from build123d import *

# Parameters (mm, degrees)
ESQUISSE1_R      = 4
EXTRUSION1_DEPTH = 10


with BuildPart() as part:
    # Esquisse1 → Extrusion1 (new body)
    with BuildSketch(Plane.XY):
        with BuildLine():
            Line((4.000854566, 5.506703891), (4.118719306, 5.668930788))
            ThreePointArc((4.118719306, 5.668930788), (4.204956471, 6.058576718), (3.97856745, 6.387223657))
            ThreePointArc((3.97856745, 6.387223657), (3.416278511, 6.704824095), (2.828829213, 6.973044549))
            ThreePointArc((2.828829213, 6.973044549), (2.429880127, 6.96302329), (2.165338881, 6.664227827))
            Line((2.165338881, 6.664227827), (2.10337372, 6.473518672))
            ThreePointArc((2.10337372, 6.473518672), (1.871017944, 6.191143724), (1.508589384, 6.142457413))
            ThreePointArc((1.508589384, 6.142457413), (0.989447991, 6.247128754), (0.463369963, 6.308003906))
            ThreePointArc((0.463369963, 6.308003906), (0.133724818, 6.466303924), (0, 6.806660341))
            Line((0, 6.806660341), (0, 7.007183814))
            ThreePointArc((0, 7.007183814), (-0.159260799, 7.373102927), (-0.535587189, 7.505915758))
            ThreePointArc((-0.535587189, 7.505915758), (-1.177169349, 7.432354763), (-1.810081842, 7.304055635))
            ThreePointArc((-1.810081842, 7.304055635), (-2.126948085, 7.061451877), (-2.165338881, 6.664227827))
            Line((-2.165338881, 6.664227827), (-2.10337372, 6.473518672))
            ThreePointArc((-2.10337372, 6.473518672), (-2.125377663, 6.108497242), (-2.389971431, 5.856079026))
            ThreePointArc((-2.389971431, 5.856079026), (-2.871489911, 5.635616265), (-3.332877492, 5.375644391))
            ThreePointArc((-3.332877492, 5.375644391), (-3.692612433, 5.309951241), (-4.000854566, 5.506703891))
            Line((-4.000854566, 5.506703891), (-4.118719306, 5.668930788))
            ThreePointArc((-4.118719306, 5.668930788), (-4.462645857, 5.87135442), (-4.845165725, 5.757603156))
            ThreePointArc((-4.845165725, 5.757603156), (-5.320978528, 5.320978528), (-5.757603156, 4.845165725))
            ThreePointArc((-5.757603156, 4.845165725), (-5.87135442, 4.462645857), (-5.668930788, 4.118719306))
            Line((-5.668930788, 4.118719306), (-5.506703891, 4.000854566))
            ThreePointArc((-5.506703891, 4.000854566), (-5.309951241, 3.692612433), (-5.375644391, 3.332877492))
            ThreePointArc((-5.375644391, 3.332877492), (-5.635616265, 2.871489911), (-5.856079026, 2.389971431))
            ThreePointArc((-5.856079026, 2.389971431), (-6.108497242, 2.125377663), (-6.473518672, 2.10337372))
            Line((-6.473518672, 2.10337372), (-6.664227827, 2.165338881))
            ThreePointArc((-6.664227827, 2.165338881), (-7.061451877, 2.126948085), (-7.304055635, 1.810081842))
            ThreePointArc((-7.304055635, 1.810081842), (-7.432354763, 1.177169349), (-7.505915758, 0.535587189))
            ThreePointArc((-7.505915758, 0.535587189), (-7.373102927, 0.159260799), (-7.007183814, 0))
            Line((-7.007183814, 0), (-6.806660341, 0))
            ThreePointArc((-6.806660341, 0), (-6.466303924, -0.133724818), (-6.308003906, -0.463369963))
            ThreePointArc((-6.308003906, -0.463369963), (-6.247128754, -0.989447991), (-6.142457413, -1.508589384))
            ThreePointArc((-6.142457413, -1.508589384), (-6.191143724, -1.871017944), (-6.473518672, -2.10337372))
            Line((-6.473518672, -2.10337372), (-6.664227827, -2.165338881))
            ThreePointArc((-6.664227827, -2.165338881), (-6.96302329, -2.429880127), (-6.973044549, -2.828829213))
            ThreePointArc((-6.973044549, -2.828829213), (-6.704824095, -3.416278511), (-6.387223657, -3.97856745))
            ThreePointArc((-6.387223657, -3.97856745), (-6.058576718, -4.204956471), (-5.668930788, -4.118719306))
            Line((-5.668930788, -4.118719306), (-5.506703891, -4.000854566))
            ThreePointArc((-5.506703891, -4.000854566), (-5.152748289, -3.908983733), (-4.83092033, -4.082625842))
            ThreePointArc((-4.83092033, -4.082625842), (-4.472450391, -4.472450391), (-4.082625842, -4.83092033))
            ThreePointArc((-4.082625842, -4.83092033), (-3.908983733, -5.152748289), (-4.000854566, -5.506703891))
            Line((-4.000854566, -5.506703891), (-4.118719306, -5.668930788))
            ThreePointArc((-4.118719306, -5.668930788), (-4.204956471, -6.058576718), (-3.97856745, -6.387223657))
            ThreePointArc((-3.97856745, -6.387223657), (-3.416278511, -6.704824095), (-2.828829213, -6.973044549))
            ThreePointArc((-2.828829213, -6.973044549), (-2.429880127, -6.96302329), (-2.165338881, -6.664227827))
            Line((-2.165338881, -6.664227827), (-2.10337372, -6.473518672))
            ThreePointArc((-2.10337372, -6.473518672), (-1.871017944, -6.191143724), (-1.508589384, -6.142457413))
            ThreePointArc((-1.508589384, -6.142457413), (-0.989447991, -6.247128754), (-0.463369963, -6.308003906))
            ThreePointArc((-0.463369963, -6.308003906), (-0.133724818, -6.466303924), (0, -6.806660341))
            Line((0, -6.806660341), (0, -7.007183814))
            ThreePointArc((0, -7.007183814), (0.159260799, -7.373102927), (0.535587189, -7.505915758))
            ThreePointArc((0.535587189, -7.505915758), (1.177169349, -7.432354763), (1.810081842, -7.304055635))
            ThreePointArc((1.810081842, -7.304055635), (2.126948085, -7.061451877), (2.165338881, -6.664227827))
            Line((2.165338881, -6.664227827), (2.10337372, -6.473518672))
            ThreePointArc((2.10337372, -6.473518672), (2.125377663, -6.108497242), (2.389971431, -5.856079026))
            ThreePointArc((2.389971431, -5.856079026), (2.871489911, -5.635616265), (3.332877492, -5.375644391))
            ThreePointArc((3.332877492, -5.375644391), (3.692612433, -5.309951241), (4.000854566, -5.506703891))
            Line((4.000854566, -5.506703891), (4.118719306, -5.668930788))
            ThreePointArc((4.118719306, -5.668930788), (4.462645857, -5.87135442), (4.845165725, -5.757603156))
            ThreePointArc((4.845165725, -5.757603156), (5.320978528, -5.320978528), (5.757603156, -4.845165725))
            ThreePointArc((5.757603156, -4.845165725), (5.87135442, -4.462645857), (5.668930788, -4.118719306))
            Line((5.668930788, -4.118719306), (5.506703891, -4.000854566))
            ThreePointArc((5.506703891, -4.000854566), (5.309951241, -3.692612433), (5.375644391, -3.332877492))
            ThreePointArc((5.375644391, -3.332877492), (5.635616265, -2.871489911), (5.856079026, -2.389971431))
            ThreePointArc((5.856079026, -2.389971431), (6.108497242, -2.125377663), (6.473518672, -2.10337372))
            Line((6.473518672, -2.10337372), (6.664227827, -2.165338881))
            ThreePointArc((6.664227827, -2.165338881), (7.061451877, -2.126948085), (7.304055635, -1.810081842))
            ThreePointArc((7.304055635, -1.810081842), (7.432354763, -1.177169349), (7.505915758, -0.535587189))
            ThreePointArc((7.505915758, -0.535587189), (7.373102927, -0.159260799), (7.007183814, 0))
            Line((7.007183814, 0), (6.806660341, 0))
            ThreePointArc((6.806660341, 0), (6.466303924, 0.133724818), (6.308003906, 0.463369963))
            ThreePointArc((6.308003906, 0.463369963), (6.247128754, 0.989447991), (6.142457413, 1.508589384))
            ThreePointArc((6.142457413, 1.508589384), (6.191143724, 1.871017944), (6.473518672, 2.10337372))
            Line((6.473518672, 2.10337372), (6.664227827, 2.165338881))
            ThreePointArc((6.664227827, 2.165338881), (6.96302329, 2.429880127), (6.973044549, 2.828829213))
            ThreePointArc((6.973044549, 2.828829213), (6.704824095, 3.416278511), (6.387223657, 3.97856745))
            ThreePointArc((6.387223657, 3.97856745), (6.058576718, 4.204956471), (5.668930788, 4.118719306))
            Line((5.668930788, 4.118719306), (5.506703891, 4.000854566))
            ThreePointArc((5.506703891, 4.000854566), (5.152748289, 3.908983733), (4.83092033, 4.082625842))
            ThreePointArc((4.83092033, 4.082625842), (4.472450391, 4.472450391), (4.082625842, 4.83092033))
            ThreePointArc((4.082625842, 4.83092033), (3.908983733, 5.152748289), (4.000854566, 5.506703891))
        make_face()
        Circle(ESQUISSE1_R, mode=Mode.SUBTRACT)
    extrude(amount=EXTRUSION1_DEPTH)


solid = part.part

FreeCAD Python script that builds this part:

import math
import FreeCAD as App
import Part
import Sketcher
from FreeCAD import Vector
Q = App.Units.Quantity

doc = App.newDocument("Part")
body = doc.addObject("PartDesign::Body", "Body")

# Sketch on XY plane
sketch1 = body.newObject("Sketcher::SketchObject", "Sketch")
sketch1.AttachmentSupport = (doc.getObject("XY_Plane"), [""])
sketch1.MapMode = "FlatFace"
sketch1.addGeometry([
    Part.LineSegment(Vector(4, 5.51, 0), Vector(4.12, 5.67, 0)),  # 0
    Part.ArcOfCircle(Part.Circle(Vector(3.71, 5.96, 0), Vector(0, 0, 1), 0.5), math.radians(-36), math.radians(58)),  # 1
    Part.ArcOfCircle(Part.Circle(Vector(0, 0, 0), Vector(0, 0, 1), 7.52), math.radians(58.08), math.radians(67.92)),  # 2
    Part.ArcOfCircle(Part.Circle(Vector(2.64, 6.51, 0), Vector(0, 0, 1), 0.5), math.radians(68), math.radians(162)),  # 3
    Part.LineSegment(Vector(2.17, 6.66, 0), Vector(2.1, 6.47, 0)),  # 4
    Part.ArcOfCircle(Part.Circle(Vector(1.63, 6.63, 0), Vector(0, 0, 1), 0.5), math.radians(-104), math.radians(-18)),  # 5
    Part.ArcOfCircle(Part.Circle(Vector(0, 0, 0), Vector(0, 0, 1), 6.33), math.radians(76.2), math.radians(85.8)),  # 6
    Part.ArcOfCircle(Part.Circle(Vector(0.5, 6.81, 0), Vector(0, 0, 1), 0.5), math.radians(-180), math.radians(-94)),  # 7
    Part.LineSegment(Vector(0, 6.81, 0), Vector(0, 7.01, 0)),  # 8
    Part.ArcOfCircle(Part.Circle(Vector(-0.5, 7.01, 0), Vector(0, 0, 1), 0.5), math.radians(0), math.radians(94)),  # 9
    Part.ArcOfCircle(Part.Circle(Vector(0, 0, 0), Vector(0, 0, 1), 7.52), math.radians(94.08), math.radians(103.92)),  # 10
    Part.ArcOfCircle(Part.Circle(Vector(-1.69, 6.82, 0), Vector(0, 0, 1), 0.5), math.radians(104), math.radians(198)),  # 11
    Part.LineSegment(Vector(-2.17, 6.66, 0), Vector(-2.1, 6.47, 0)),  # 12
    Part.ArcOfCircle(Part.Circle(Vector(-2.58, 6.32, 0), Vector(0, 0, 1), 0.5), math.radians(-68), math.radians(18)),  # 13
    Part.ArcOfCircle(Part.Circle(Vector(0, 0, 0), Vector(0, 0, 1), 6.33), math.radians(112.2), math.radians(121.8)),  # 14
    Part.ArcOfCircle(Part.Circle(Vector(-3.6, 5.8, 0), Vector(0, 0, 1), 0.5), math.radians(-144), math.radians(-58)),  # 15
    Part.LineSegment(Vector(-4, 5.51, 0), Vector(-4.12, 5.67, 0)),  # 16
    Part.ArcOfCircle(Part.Circle(Vector(-4.52, 5.38, 0), Vector(0, 0, 1), 0.5), math.radians(36), math.radians(130)),  # 17
    Part.ArcOfCircle(Part.Circle(Vector(0, 0, 0), Vector(0, 0, 1), 7.53), math.radians(130.08), math.radians(139.92)),  # 18
    Part.ArcOfCircle(Part.Circle(Vector(-5.38, 4.52, 0), Vector(0, 0, 1), 0.5), math.radians(140), math.radians(234)),  # 19
    Part.LineSegment(Vector(-5.67, 4.12, 0), Vector(-5.51, 4, 0)),  # 20
    Part.ArcOfCircle(Part.Circle(Vector(-5.8, 3.6, 0), Vector(0, 0, 1), 0.5), math.radians(-32), math.radians(54)),  # 21
    Part.ArcOfCircle(Part.Circle(Vector(0, 0, 0), Vector(0, 0, 1), 6.33), math.radians(148.2), math.radians(157.8)),  # 22
    Part.ArcOfCircle(Part.Circle(Vector(-6.32, 2.58, 0), Vector(0, 0, 1), 0.5), math.radians(-108), math.radians(-22)),  # 23
    Part.LineSegment(Vector(-6.47, 2.1, 0), Vector(-6.66, 2.17, 0)),  # 24
    Part.ArcOfCircle(Part.Circle(Vector(-6.82, 1.69, 0), Vector(0, 0, 1), 0.5), math.radians(72), math.radians(166)),  # 25
    Part.ArcOfCircle(Part.Circle(Vector(0, 0, 0), Vector(0, 0, 1), 7.52), math.radians(166.08), math.radians(175.92)),  # 26
    Part.ArcOfCircle(Part.Circle(Vector(-7.01, 0.5, 0), Vector(0, 0, 1), 0.5), math.radians(176), math.radians(270)),  # 27
    Part.LineSegment(Vector(-7.01, 0, 0), Vector(-6.81, 0, 0)),  # 28
    Part.ArcOfCircle(Part.Circle(Vector(-6.81, -0.5, 0), Vector(0, 0, 1), 0.5), math.radians(4), math.radians(90)),  # 29
    Part.ArcOfCircle(Part.Circle(Vector(0, 0, 0), Vector(0, 0, 1), 6.33), math.radians(-175.8), math.radians(-166.2)),  # 30
    Part.ArcOfCircle(Part.Circle(Vector(-6.63, -1.63, 0), Vector(0, 0, 1), 0.5), math.radians(-72), math.radians(14)),  # 31
    Part.LineSegment(Vector(-6.47, -2.1, 0), Vector(-6.66, -2.17, 0)),  # 32
    Part.ArcOfCircle(Part.Circle(Vector(-6.51, -2.64, 0), Vector(0, 0, 1), 0.5), math.radians(108), math.radians(202)),  # 33
    Part.ArcOfCircle(Part.Circle(Vector(0, 0, 0), Vector(0, 0, 1), 7.52), math.radians(-157.92), math.radians(-148.08)),  # 34
    Part.ArcOfCircle(Part.Circle(Vector(-5.96, -3.71, 0), Vector(0, 0, 1), 0.5), math.radians(-148), math.radians(-54)),  # 35
    Part.LineSegment(Vector(-5.67, -4.12, 0), Vector(-5.51, -4, 0)),  # 36
    Part.ArcOfCircle(Part.Circle(Vector(-5.21, -4.41, 0), Vector(0, 0, 1), 0.5), math.radians(40), math.radians(126)),  # 37
    Part.ArcOfCircle(Part.Circle(Vector(0, 0, 0), Vector(0, 0, 1), 6.33), math.radians(-139.8), math.radians(-130.2)),  # 38
    Part.ArcOfCircle(Part.Circle(Vector(-4.41, -5.21, 0), Vector(0, 0, 1), 0.5), math.radians(-36), math.radians(50)),  # 39
    Part.LineSegment(Vector(-4, -5.51, 0), Vector(-4.12, -5.67, 0)),  # 40
    Part.ArcOfCircle(Part.Circle(Vector(-3.71, -5.96, 0), Vector(0, 0, 1), 0.5), math.radians(144), math.radians(238)),  # 41
    Part.ArcOfCircle(Part.Circle(Vector(0, 0, 0), Vector(0, 0, 1), 7.52), math.radians(-121.92), math.radians(-112.08)),  # 42
    Part.ArcOfCircle(Part.Circle(Vector(-2.64, -6.51, 0), Vector(0, 0, 1), 0.5), math.radians(-112), math.radians(-18)),  # 43
    Part.LineSegment(Vector(-2.17, -6.66, 0), Vector(-2.1, -6.47, 0)),  # 44
    Part.ArcOfCircle(Part.Circle(Vector(-1.63, -6.63, 0), Vector(0, 0, 1), 0.5), math.radians(76), math.radians(162)),  # 45
    Part.ArcOfCircle(Part.Circle(Vector(0, 0, 0), Vector(0, 0, 1), 6.33), math.radians(-103.8), math.radians(-94.2)),  # 46
    Part.ArcOfCircle(Part.Circle(Vector(-0.5, -6.81, 0), Vector(0, 0, 1), 0.5), math.radians(0), math.radians(86)),  # 47
    Part.LineSegment(Vector(0, -6.81, 0), Vector(0, -7.01, 0)),  # 48
    Part.ArcOfCircle(Part.Circle(Vector(0.5, -7.01, 0), Vector(0, 0, 1), 0.5), math.radians(180), math.radians(274)),  # 49
    Part.ArcOfCircle(Part.Circle(Vector(0, 0, 0), Vector(0, 0, 1), 7.52), math.radians(-85.92), math.radians(-76.08)),  # 50
    Part.ArcOfCircle(Part.Circle(Vector(1.69, -6.82, 0), Vector(0, 0, 1), 0.5), math.radians(-76), math.radians(18)),  # 51
    Part.LineSegment(Vector(2.17, -6.66, 0), Vector(2.1, -6.47, 0)),  # 52
    Part.ArcOfCircle(Part.Circle(Vector(2.58, -6.32, 0), Vector(0, 0, 1), 0.5), math.radians(112), math.radians(198)),  # 53
    Part.ArcOfCircle(Part.Circle(Vector(0, 0, 0), Vector(0, 0, 1), 6.33), math.radians(-67.8), math.radians(-58.2)),  # 54
    Part.ArcOfCircle(Part.Circle(Vector(3.6, -5.8, 0), Vector(0, 0, 1), 0.5), math.radians(36), math.radians(122)),  # 55
    Part.LineSegment(Vector(4, -5.51, 0), Vector(4.12, -5.67, 0)),  # 56
    Part.ArcOfCircle(Part.Circle(Vector(4.52, -5.38, 0), Vector(0, 0, 1), 0.5), math.radians(-144), math.radians(-50)),  # 57
    Part.ArcOfCircle(Part.Circle(Vector(0, 0, 0), Vector(0, 0, 1), 7.53), math.radians(-49.92), math.radians(-40.08)),  # 58
    Part.ArcOfCircle(Part.Circle(Vector(5.38, -4.52, 0), Vector(0, 0, 1), 0.5), math.radians(-40), math.radians(54)),  # 59
    Part.LineSegment(Vector(5.67, -4.12, 0), Vector(5.51, -4, 0)),  # 60
    Part.ArcOfCircle(Part.Circle(Vector(5.8, -3.6, 0), Vector(0, 0, 1), 0.5), math.radians(148), math.radians(234)),  # 61
    Part.ArcOfCircle(Part.Circle(Vector(0, 0, 0), Vector(0, 0, 1), 6.33), math.radians(-31.8), math.radians(-22.2)),  # 62
    Part.ArcOfCircle(Part.Circle(Vector(6.32, -2.58, 0), Vector(0, 0, 1), 0.5), math.radians(72), math.radians(158)),  # 63
    Part.LineSegment(Vector(6.47, -2.1, 0), Vector(6.66, -2.17, 0)),  # 64
    Part.ArcOfCircle(Part.Circle(Vector(6.82, -1.69, 0), Vector(0, 0, 1), 0.5), math.radians(-108), math.radians(-14)),  # 65
    Part.ArcOfCircle(Part.Circle(Vector(0, 0, 0), Vector(0, 0, 1), 7.52), math.radians(-13.92), math.radians(-4.08)),  # 66
    Part.ArcOfCircle(Part.Circle(Vector(7.01, -0.5, 0), Vector(0, 0, 1), 0.5), math.radians(-4), math.radians(90)),  # 67
    Part.LineSegment(Vector(7.01, 0, 0), Vector(6.81, 0, 0)),  # 68
    Part.ArcOfCircle(Part.Circle(Vector(6.81, 0.5, 0), Vector(0, 0, 1), 0.5), math.radians(-176), math.radians(-90)),  # 69
    Part.ArcOfCircle(Part.Circle(Vector(0, 0, 0), Vector(0, 0, 1), 6.33), math.radians(4.2), math.radians(13.8)),  # 70
    Part.ArcOfCircle(Part.Circle(Vector(6.63, 1.63, 0), Vector(0, 0, 1), 0.5), math.radians(108), math.radians(194)),  # 71
    Part.LineSegment(Vector(6.47, 2.1, 0), Vector(6.66, 2.17, 0)),  # 72
    Part.ArcOfCircle(Part.Circle(Vector(6.51, 2.64, 0), Vector(0, 0, 1), 0.5), math.radians(-72), math.radians(22)),  # 73
    Part.ArcOfCircle(Part.Circle(Vector(0, 0, 0), Vector(0, 0, 1), 7.52), math.radians(22.08), math.radians(31.92)),  # 74
    Part.ArcOfCircle(Part.Circle(Vector(5.96, 3.71, 0), Vector(0, 0, 1), 0.5), math.radians(32), math.radians(126)),  # 75
    Part.LineSegment(Vector(5.67, 4.12, 0), Vector(5.51, 4, 0)),  # 76
    Part.ArcOfCircle(Part.Circle(Vector(5.21, 4.41, 0), Vector(0, 0, 1), 0.5), math.radians(-140), math.radians(-54)),  # 77
    Part.ArcOfCircle(Part.Circle(Vector(0, 0, 0), Vector(0, 0, 1), 6.33), math.radians(40.2), math.radians(49.8)),  # 78
    Part.ArcOfCircle(Part.Circle(Vector(4.41, 5.21, 0), Vector(0, 0, 1), 0.5), math.radians(144), math.radians(230)),  # 79
    Part.Circle(Vector(0, 0, 0), Vector(0, 0, 1), 4),  # 80
], False)
sketch1.addConstraint([
    Sketcher.Constraint("Tangent", 0, 2, 1, 1),
    Sketcher.Constraint("Tangent", 1, 2, 2, 1),
    Sketcher.Constraint("Tangent", 2, 2, 3, 1),
    Sketcher.Constraint("Tangent", 3, 2, 4, 1),
    Sketcher.Constraint("Tangent", 4, 2, 5, 2),
    Sketcher.Constraint("Tangent", 5, 1, 6, 1),
    Sketcher.Constraint("Tangent", 6, 2, 7, 2),
    Sketcher.Constraint("Tangent", 7, 1, 8, 1),
    Sketcher.Constraint("Tangent", 8, 2, 9, 1),
    Sketcher.Constraint("Tangent", 9, 2, 10, 1),
    Sketcher.Constraint("Tangent", 10, 2, 11, 1),
    Sketcher.Constraint("Tangent", 11, 2, 12, 1),
    Sketcher.Constraint("Tangent", 12, 2, 13, 2),
    Sketcher.Constraint("Tangent", 13, 1, 14, 1),
    Sketcher.Constraint("Tangent", 14, 2, 15, 2),
    Sketcher.Constraint("Tangent", 15, 1, 16, 1),
    Sketcher.Constraint("Tangent", 16, 2, 17, 1),
    Sketcher.Constraint("Tangent", 17, 2, 18, 1),
    Sketcher.Constraint("Tangent", 18, 2, 19, 1),
    Sketcher.Constraint("Tangent", 19, 2, 20, 1),
    Sketcher.Constraint("Tangent", 20, 2, 21, 2),
    Sketcher.Constraint("Tangent", 21, 1, 22, 1),
    Sketcher.Constraint("Tangent", 22, 2, 23, 2),
    Sketcher.Constraint("Tangent", 23, 1, 24, 1),
    Sketcher.Constraint("Tangent", 24, 2, 25, 1),
    Sketcher.Constraint("Tangent", 25, 2, 26, 1),
    Sketcher.Constraint("Tangent", 26, 2, 27, 1),
    Sketcher.Constraint("Tangent", 27, 2, 28, 1),
    Sketcher.Constraint("Tangent", 28, 2, 29, 2),
    Sketcher.Constraint("Tangent", 29, 1, 30, 1),
    Sketcher.Constraint("Tangent", 30, 2, 31, 2),
    Sketcher.Constraint("Tangent", 31, 1, 32, 1),
    Sketcher.Constraint("Tangent", 32, 2, 33, 1),
    Sketcher.Constraint("Tangent", 33, 2, 34, 1),
    Sketcher.Constraint("Tangent", 34, 2, 35, 1),
    Sketcher.Constraint("Tangent", 35, 2, 36, 1),
    Sketcher.Constraint("Tangent", 36, 2, 37, 2),
    Sketcher.Constraint("Tangent", 37, 1, 38, 1),
    Sketcher.Constraint("Tangent", 38, 2, 39, 2),
    Sketcher.Constraint("Tangent", 39, 1, 40, 1),
    Sketcher.Constraint("Tangent", 40, 2, 41, 1),
    Sketcher.Constraint("Tangent", 41, 2, 42, 1),
    Sketcher.Constraint("Tangent", 42, 2, 43, 1),
    Sketcher.Constraint("Tangent", 43, 2, 44, 1),
    Sketcher.Constraint("Tangent", 44, 2, 45, 2),
    Sketcher.Constraint("Tangent", 45, 1, 46, 1),
    Sketcher.Constraint("Tangent", 46, 2, 47, 2),
    Sketcher.Constraint("Tangent", 47, 1, 48, 1),
    Sketcher.Constraint("Tangent", 48, 2, 49, 1),
    Sketcher.Constraint("Tangent", 49, 2, 50, 1),
    Sketcher.Constraint("Tangent", 50, 2, 51, 1),
    Sketcher.Constraint("Tangent", 51, 2, 52, 1),
    Sketcher.Constraint("Tangent", 52, 2, 53, 2),
    Sketcher.Constraint("Tangent", 53, 1, 54, 1),
    Sketcher.Constraint("Tangent", 54, 2, 55, 2),
    Sketcher.Constraint("Tangent", 55, 1, 56, 1),
    Sketcher.Constraint("Tangent", 56, 2, 57, 1),
    Sketcher.Constraint("Tangent", 57, 2, 58, 1),
    Sketcher.Constraint("Tangent", 58, 2, 59, 1),
    Sketcher.Constraint("Tangent", 59, 2, 60, 1),
    Sketcher.Constraint("Tangent", 60, 2, 61, 2),
    Sketcher.Constraint("Tangent", 61, 1, 62, 1),
    Sketcher.Constraint("Tangent", 62, 2, 63, 2),
    Sketcher.Constraint("Tangent", 63, 1, 64, 1),
    Sketcher.Constraint("Tangent", 64, 2, 65, 1),
    Sketcher.Constraint("Tangent", 65, 2, 66, 1),
    Sketcher.Constraint("Tangent", 66, 2, 67, 1),
    Sketcher.Constraint("Tangent", 67, 2, 68, 1),
    Sketcher.Constraint("Tangent", 68, 2, 69, 2),
    Sketcher.Constraint("Tangent", 69, 1, 70, 1),
    Sketcher.Constraint("Tangent", 70, 2, 71, 2),
    Sketcher.Constraint("Tangent", 71, 1, 72, 1),
    Sketcher.Constraint("Tangent", 72, 2, 73, 1),
    Sketcher.Constraint("Tangent", 73, 2, 74, 1),
    Sketcher.Constraint("Tangent", 74, 2, 75, 1),
    Sketcher.Constraint("Tangent", 75, 2, 76, 1),
    Sketcher.Constraint("Tangent", 76, 2, 77, 2),
    Sketcher.Constraint("Tangent", 77, 1, 78, 1),
    Sketcher.Constraint("Tangent", 78, 2, 79, 2),
    Sketcher.Constraint("Tangent", 79, 1, 0, 1),
    Sketcher.Constraint("Vertical", 8),
    Sketcher.Constraint("Horizontal", 28),
    Sketcher.Constraint("Vertical", 48),
    Sketcher.Constraint("Horizontal", 68),
    Sketcher.Constraint("Coincident", 2, 3, -1, 1),
    Sketcher.Constraint("Coincident", 6, 3, -1, 1),
    Sketcher.Constraint("Coincident", 10, 3, -1, 1),
    Sketcher.Constraint("Coincident", 14, 3, -1, 1),
    Sketcher.Constraint("Coincident", 18, 3, -1, 1),
    Sketcher.Constraint("Coincident", 22, 3, -1, 1),
    Sketcher.Constraint("Coincident", 26, 3, -1, 1),
    Sketcher.Constraint("Coincident", 30, 3, -1, 1),
    Sketcher.Constraint("Coincident", 34, 3, -1, 1),
    Sketcher.Constraint("Coincident", 38, 3, -1, 1),
    Sketcher.Constraint("Coincident", 42, 3, -1, 1),
    Sketcher.Constraint("Coincident", 46, 3, -1, 1),
    Sketcher.Constraint("Coincident", 50, 3, -1, 1),
    Sketcher.Constraint("Coincident", 54, 3, -1, 1),
    Sketcher.Constraint("Coincident", 58, 3, -1, 1),
    Sketcher.Constraint("Coincident", 62, 3, -1, 1),
    Sketcher.Constraint("Coincident", 66, 3, -1, 1),
    Sketcher.Constraint("Coincident", 70, 3, -1, 1),
    Sketcher.Constraint("Coincident", 74, 3, -1, 1),
    Sketcher.Constraint("Coincident", 78, 3, -1, 1),
    Sketcher.Constraint("Coincident", 80, 3, -1, 1),
    Sketcher.Constraint("Equal", 1, 3),
    Sketcher.Constraint("Equal", 3, 5),
    Sketcher.Constraint("Equal", 5, 7),
    Sketcher.Constraint("Equal", 7, 9),
    Sketcher.Constraint("Equal", 2, 10),
    Sketcher.Constraint("Equal", 9, 11),
    Sketcher.Constraint("Equal", 11, 13),
    Sketcher.Constraint("Equal", 6, 14),
    Sketcher.Constraint("Equal", 13, 15),
    Sketcher.Constraint("Equal", 15, 17),
    Sketcher.Constraint("Equal", 10, 18),
    Sketcher.Constraint("Equal", 17, 19),
    Sketcher.Constraint("Equal", 19, 21),
    Sketcher.Constraint("Equal", 14, 22),
    Sketcher.Constraint("Equal", 21, 23),
    Sketcher.Constraint("Equal", 23, 25),
    Sketcher.Constraint("Equal", 18, 26),
    Sketcher.Constraint("Equal", 25, 27),
    Sketcher.Constraint("Equal", 27, 29),
    Sketcher.Constraint("Equal", 22, 30),
    Sketcher.Constraint("Equal", 29, 31),
    Sketcher.Constraint("Equal", 31, 33),
    Sketcher.Constraint("Equal", 26, 34),
    Sketcher.Constraint("Equal", 33, 35),
    Sketcher.Constraint("Equal", 35, 37),
    Sketcher.Constraint("Equal", 30, 38),
    Sketcher.Constraint("Equal", 37, 39),
    Sketcher.Constraint("Equal", 39, 41),
    Sketcher.Constraint("Equal", 34, 42),
    Sketcher.Constraint("Equal", 41, 43),
    Sketcher.Constraint("Equal", 43, 45),
    Sketcher.Constraint("Equal", 38, 46),
    Sketcher.Constraint("Equal", 45, 47),
    Sketcher.Constraint("Equal", 47, 49),
    Sketcher.Constraint("Equal", 42, 50),
    Sketcher.Constraint("Equal", 49, 51),
    Sketcher.Constraint("Equal", 51, 53),
    Sketcher.Constraint("Equal", 46, 54),
    Sketcher.Constraint("Equal", 53, 55),
    Sketcher.Constraint("Equal", 55, 57),
    Sketcher.Constraint("Equal", 50, 58),
    Sketcher.Constraint("Equal", 57, 59),
    Sketcher.Constraint("Equal", 59, 61),
    Sketcher.Constraint("Equal", 54, 62),
    Sketcher.Constraint("Equal", 61, 63),
    Sketcher.Constraint("Equal", 63, 65),
    Sketcher.Constraint("Equal", 58, 66),
    Sketcher.Constraint("Equal", 65, 67),
    Sketcher.Constraint("Equal", 67, 69),
    Sketcher.Constraint("Equal", 62, 70),
    Sketcher.Constraint("Equal", 69, 71),
    Sketcher.Constraint("Equal", 71, 73),
    Sketcher.Constraint("Equal", 66, 74),
    Sketcher.Constraint("Equal", 73, 75),
    Sketcher.Constraint("Equal", 75, 77),
    Sketcher.Constraint("Equal", 70, 78),
    Sketcher.Constraint("Equal", 77, 79),
    Sketcher.Constraint("Symmetric", 0, 2, 40, 2, -1, 1),
    Sketcher.Constraint("Symmetric", 3, 2, 43, 2, -1, 1),
    Sketcher.Constraint("Symmetric", 11, 2, 51, 2, -1, 1),
    Sketcher.Constraint("Symmetric", 15, 1, 55, 1, -1, 1),
    Sketcher.Constraint("Symmetric", 19, 2, 59, 2, -1, 1),
    Sketcher.Constraint("Symmetric", 23, 1, 63, 1, -1, 1),
    Sketcher.Constraint("Symmetric", 31, 1, 71, 1, -1, 1),
    Sketcher.Constraint("Symmetric", 35, 2, 75, 2, -1, 1),
    Sketcher.Constraint("Symmetric", 3, 2, 11, 2, -2),
    Sketcher.Constraint("Symmetric", 0, 2, 16, 2, -2),
    Sketcher.Constraint("Symmetric", 35, 2, 59, 2, -2),
    Sketcher.Constraint("Symmetric", 31, 1, 63, 1, -2),
    Sketcher.Constraint("Symmetric", 27, 2, 67, 2, -2),
    Sketcher.Constraint("Symmetric", 7, 1, 47, 1, -1),
    Sketcher.Constraint("Perpendicular", 0, 20),
    Sketcher.Constraint("Perpendicular", 4, 24),
    Sketcher.Constraint("Perpendicular", 12, 32),
    Sketcher.Constraint("Perpendicular", 16, 36),
    Sketcher.Constraint("Horizontal", 4, 2, 12, 2),
    Sketcher.Constraint("Horizontal", 39, 1, 55, 1),
    Sketcher.Constraint("Diameter", 80, 8.0),
    Sketcher.Constraint("Radius", 1, 0.5),
    Sketcher.Constraint("Angle", 0, Q("54 deg")),
    Sketcher.Constraint("Angle", 4, Q("-108 deg")),
    Sketcher.Constraint("Radius", 2, 7.525),
    Sketcher.Constraint("Radius", 6, 6.325),
])
pad1 = body.newObject("PartDesign::Pad", "Pad")
pad1.Profile = sketch1
pad1.Length = 10

doc.recompute()
